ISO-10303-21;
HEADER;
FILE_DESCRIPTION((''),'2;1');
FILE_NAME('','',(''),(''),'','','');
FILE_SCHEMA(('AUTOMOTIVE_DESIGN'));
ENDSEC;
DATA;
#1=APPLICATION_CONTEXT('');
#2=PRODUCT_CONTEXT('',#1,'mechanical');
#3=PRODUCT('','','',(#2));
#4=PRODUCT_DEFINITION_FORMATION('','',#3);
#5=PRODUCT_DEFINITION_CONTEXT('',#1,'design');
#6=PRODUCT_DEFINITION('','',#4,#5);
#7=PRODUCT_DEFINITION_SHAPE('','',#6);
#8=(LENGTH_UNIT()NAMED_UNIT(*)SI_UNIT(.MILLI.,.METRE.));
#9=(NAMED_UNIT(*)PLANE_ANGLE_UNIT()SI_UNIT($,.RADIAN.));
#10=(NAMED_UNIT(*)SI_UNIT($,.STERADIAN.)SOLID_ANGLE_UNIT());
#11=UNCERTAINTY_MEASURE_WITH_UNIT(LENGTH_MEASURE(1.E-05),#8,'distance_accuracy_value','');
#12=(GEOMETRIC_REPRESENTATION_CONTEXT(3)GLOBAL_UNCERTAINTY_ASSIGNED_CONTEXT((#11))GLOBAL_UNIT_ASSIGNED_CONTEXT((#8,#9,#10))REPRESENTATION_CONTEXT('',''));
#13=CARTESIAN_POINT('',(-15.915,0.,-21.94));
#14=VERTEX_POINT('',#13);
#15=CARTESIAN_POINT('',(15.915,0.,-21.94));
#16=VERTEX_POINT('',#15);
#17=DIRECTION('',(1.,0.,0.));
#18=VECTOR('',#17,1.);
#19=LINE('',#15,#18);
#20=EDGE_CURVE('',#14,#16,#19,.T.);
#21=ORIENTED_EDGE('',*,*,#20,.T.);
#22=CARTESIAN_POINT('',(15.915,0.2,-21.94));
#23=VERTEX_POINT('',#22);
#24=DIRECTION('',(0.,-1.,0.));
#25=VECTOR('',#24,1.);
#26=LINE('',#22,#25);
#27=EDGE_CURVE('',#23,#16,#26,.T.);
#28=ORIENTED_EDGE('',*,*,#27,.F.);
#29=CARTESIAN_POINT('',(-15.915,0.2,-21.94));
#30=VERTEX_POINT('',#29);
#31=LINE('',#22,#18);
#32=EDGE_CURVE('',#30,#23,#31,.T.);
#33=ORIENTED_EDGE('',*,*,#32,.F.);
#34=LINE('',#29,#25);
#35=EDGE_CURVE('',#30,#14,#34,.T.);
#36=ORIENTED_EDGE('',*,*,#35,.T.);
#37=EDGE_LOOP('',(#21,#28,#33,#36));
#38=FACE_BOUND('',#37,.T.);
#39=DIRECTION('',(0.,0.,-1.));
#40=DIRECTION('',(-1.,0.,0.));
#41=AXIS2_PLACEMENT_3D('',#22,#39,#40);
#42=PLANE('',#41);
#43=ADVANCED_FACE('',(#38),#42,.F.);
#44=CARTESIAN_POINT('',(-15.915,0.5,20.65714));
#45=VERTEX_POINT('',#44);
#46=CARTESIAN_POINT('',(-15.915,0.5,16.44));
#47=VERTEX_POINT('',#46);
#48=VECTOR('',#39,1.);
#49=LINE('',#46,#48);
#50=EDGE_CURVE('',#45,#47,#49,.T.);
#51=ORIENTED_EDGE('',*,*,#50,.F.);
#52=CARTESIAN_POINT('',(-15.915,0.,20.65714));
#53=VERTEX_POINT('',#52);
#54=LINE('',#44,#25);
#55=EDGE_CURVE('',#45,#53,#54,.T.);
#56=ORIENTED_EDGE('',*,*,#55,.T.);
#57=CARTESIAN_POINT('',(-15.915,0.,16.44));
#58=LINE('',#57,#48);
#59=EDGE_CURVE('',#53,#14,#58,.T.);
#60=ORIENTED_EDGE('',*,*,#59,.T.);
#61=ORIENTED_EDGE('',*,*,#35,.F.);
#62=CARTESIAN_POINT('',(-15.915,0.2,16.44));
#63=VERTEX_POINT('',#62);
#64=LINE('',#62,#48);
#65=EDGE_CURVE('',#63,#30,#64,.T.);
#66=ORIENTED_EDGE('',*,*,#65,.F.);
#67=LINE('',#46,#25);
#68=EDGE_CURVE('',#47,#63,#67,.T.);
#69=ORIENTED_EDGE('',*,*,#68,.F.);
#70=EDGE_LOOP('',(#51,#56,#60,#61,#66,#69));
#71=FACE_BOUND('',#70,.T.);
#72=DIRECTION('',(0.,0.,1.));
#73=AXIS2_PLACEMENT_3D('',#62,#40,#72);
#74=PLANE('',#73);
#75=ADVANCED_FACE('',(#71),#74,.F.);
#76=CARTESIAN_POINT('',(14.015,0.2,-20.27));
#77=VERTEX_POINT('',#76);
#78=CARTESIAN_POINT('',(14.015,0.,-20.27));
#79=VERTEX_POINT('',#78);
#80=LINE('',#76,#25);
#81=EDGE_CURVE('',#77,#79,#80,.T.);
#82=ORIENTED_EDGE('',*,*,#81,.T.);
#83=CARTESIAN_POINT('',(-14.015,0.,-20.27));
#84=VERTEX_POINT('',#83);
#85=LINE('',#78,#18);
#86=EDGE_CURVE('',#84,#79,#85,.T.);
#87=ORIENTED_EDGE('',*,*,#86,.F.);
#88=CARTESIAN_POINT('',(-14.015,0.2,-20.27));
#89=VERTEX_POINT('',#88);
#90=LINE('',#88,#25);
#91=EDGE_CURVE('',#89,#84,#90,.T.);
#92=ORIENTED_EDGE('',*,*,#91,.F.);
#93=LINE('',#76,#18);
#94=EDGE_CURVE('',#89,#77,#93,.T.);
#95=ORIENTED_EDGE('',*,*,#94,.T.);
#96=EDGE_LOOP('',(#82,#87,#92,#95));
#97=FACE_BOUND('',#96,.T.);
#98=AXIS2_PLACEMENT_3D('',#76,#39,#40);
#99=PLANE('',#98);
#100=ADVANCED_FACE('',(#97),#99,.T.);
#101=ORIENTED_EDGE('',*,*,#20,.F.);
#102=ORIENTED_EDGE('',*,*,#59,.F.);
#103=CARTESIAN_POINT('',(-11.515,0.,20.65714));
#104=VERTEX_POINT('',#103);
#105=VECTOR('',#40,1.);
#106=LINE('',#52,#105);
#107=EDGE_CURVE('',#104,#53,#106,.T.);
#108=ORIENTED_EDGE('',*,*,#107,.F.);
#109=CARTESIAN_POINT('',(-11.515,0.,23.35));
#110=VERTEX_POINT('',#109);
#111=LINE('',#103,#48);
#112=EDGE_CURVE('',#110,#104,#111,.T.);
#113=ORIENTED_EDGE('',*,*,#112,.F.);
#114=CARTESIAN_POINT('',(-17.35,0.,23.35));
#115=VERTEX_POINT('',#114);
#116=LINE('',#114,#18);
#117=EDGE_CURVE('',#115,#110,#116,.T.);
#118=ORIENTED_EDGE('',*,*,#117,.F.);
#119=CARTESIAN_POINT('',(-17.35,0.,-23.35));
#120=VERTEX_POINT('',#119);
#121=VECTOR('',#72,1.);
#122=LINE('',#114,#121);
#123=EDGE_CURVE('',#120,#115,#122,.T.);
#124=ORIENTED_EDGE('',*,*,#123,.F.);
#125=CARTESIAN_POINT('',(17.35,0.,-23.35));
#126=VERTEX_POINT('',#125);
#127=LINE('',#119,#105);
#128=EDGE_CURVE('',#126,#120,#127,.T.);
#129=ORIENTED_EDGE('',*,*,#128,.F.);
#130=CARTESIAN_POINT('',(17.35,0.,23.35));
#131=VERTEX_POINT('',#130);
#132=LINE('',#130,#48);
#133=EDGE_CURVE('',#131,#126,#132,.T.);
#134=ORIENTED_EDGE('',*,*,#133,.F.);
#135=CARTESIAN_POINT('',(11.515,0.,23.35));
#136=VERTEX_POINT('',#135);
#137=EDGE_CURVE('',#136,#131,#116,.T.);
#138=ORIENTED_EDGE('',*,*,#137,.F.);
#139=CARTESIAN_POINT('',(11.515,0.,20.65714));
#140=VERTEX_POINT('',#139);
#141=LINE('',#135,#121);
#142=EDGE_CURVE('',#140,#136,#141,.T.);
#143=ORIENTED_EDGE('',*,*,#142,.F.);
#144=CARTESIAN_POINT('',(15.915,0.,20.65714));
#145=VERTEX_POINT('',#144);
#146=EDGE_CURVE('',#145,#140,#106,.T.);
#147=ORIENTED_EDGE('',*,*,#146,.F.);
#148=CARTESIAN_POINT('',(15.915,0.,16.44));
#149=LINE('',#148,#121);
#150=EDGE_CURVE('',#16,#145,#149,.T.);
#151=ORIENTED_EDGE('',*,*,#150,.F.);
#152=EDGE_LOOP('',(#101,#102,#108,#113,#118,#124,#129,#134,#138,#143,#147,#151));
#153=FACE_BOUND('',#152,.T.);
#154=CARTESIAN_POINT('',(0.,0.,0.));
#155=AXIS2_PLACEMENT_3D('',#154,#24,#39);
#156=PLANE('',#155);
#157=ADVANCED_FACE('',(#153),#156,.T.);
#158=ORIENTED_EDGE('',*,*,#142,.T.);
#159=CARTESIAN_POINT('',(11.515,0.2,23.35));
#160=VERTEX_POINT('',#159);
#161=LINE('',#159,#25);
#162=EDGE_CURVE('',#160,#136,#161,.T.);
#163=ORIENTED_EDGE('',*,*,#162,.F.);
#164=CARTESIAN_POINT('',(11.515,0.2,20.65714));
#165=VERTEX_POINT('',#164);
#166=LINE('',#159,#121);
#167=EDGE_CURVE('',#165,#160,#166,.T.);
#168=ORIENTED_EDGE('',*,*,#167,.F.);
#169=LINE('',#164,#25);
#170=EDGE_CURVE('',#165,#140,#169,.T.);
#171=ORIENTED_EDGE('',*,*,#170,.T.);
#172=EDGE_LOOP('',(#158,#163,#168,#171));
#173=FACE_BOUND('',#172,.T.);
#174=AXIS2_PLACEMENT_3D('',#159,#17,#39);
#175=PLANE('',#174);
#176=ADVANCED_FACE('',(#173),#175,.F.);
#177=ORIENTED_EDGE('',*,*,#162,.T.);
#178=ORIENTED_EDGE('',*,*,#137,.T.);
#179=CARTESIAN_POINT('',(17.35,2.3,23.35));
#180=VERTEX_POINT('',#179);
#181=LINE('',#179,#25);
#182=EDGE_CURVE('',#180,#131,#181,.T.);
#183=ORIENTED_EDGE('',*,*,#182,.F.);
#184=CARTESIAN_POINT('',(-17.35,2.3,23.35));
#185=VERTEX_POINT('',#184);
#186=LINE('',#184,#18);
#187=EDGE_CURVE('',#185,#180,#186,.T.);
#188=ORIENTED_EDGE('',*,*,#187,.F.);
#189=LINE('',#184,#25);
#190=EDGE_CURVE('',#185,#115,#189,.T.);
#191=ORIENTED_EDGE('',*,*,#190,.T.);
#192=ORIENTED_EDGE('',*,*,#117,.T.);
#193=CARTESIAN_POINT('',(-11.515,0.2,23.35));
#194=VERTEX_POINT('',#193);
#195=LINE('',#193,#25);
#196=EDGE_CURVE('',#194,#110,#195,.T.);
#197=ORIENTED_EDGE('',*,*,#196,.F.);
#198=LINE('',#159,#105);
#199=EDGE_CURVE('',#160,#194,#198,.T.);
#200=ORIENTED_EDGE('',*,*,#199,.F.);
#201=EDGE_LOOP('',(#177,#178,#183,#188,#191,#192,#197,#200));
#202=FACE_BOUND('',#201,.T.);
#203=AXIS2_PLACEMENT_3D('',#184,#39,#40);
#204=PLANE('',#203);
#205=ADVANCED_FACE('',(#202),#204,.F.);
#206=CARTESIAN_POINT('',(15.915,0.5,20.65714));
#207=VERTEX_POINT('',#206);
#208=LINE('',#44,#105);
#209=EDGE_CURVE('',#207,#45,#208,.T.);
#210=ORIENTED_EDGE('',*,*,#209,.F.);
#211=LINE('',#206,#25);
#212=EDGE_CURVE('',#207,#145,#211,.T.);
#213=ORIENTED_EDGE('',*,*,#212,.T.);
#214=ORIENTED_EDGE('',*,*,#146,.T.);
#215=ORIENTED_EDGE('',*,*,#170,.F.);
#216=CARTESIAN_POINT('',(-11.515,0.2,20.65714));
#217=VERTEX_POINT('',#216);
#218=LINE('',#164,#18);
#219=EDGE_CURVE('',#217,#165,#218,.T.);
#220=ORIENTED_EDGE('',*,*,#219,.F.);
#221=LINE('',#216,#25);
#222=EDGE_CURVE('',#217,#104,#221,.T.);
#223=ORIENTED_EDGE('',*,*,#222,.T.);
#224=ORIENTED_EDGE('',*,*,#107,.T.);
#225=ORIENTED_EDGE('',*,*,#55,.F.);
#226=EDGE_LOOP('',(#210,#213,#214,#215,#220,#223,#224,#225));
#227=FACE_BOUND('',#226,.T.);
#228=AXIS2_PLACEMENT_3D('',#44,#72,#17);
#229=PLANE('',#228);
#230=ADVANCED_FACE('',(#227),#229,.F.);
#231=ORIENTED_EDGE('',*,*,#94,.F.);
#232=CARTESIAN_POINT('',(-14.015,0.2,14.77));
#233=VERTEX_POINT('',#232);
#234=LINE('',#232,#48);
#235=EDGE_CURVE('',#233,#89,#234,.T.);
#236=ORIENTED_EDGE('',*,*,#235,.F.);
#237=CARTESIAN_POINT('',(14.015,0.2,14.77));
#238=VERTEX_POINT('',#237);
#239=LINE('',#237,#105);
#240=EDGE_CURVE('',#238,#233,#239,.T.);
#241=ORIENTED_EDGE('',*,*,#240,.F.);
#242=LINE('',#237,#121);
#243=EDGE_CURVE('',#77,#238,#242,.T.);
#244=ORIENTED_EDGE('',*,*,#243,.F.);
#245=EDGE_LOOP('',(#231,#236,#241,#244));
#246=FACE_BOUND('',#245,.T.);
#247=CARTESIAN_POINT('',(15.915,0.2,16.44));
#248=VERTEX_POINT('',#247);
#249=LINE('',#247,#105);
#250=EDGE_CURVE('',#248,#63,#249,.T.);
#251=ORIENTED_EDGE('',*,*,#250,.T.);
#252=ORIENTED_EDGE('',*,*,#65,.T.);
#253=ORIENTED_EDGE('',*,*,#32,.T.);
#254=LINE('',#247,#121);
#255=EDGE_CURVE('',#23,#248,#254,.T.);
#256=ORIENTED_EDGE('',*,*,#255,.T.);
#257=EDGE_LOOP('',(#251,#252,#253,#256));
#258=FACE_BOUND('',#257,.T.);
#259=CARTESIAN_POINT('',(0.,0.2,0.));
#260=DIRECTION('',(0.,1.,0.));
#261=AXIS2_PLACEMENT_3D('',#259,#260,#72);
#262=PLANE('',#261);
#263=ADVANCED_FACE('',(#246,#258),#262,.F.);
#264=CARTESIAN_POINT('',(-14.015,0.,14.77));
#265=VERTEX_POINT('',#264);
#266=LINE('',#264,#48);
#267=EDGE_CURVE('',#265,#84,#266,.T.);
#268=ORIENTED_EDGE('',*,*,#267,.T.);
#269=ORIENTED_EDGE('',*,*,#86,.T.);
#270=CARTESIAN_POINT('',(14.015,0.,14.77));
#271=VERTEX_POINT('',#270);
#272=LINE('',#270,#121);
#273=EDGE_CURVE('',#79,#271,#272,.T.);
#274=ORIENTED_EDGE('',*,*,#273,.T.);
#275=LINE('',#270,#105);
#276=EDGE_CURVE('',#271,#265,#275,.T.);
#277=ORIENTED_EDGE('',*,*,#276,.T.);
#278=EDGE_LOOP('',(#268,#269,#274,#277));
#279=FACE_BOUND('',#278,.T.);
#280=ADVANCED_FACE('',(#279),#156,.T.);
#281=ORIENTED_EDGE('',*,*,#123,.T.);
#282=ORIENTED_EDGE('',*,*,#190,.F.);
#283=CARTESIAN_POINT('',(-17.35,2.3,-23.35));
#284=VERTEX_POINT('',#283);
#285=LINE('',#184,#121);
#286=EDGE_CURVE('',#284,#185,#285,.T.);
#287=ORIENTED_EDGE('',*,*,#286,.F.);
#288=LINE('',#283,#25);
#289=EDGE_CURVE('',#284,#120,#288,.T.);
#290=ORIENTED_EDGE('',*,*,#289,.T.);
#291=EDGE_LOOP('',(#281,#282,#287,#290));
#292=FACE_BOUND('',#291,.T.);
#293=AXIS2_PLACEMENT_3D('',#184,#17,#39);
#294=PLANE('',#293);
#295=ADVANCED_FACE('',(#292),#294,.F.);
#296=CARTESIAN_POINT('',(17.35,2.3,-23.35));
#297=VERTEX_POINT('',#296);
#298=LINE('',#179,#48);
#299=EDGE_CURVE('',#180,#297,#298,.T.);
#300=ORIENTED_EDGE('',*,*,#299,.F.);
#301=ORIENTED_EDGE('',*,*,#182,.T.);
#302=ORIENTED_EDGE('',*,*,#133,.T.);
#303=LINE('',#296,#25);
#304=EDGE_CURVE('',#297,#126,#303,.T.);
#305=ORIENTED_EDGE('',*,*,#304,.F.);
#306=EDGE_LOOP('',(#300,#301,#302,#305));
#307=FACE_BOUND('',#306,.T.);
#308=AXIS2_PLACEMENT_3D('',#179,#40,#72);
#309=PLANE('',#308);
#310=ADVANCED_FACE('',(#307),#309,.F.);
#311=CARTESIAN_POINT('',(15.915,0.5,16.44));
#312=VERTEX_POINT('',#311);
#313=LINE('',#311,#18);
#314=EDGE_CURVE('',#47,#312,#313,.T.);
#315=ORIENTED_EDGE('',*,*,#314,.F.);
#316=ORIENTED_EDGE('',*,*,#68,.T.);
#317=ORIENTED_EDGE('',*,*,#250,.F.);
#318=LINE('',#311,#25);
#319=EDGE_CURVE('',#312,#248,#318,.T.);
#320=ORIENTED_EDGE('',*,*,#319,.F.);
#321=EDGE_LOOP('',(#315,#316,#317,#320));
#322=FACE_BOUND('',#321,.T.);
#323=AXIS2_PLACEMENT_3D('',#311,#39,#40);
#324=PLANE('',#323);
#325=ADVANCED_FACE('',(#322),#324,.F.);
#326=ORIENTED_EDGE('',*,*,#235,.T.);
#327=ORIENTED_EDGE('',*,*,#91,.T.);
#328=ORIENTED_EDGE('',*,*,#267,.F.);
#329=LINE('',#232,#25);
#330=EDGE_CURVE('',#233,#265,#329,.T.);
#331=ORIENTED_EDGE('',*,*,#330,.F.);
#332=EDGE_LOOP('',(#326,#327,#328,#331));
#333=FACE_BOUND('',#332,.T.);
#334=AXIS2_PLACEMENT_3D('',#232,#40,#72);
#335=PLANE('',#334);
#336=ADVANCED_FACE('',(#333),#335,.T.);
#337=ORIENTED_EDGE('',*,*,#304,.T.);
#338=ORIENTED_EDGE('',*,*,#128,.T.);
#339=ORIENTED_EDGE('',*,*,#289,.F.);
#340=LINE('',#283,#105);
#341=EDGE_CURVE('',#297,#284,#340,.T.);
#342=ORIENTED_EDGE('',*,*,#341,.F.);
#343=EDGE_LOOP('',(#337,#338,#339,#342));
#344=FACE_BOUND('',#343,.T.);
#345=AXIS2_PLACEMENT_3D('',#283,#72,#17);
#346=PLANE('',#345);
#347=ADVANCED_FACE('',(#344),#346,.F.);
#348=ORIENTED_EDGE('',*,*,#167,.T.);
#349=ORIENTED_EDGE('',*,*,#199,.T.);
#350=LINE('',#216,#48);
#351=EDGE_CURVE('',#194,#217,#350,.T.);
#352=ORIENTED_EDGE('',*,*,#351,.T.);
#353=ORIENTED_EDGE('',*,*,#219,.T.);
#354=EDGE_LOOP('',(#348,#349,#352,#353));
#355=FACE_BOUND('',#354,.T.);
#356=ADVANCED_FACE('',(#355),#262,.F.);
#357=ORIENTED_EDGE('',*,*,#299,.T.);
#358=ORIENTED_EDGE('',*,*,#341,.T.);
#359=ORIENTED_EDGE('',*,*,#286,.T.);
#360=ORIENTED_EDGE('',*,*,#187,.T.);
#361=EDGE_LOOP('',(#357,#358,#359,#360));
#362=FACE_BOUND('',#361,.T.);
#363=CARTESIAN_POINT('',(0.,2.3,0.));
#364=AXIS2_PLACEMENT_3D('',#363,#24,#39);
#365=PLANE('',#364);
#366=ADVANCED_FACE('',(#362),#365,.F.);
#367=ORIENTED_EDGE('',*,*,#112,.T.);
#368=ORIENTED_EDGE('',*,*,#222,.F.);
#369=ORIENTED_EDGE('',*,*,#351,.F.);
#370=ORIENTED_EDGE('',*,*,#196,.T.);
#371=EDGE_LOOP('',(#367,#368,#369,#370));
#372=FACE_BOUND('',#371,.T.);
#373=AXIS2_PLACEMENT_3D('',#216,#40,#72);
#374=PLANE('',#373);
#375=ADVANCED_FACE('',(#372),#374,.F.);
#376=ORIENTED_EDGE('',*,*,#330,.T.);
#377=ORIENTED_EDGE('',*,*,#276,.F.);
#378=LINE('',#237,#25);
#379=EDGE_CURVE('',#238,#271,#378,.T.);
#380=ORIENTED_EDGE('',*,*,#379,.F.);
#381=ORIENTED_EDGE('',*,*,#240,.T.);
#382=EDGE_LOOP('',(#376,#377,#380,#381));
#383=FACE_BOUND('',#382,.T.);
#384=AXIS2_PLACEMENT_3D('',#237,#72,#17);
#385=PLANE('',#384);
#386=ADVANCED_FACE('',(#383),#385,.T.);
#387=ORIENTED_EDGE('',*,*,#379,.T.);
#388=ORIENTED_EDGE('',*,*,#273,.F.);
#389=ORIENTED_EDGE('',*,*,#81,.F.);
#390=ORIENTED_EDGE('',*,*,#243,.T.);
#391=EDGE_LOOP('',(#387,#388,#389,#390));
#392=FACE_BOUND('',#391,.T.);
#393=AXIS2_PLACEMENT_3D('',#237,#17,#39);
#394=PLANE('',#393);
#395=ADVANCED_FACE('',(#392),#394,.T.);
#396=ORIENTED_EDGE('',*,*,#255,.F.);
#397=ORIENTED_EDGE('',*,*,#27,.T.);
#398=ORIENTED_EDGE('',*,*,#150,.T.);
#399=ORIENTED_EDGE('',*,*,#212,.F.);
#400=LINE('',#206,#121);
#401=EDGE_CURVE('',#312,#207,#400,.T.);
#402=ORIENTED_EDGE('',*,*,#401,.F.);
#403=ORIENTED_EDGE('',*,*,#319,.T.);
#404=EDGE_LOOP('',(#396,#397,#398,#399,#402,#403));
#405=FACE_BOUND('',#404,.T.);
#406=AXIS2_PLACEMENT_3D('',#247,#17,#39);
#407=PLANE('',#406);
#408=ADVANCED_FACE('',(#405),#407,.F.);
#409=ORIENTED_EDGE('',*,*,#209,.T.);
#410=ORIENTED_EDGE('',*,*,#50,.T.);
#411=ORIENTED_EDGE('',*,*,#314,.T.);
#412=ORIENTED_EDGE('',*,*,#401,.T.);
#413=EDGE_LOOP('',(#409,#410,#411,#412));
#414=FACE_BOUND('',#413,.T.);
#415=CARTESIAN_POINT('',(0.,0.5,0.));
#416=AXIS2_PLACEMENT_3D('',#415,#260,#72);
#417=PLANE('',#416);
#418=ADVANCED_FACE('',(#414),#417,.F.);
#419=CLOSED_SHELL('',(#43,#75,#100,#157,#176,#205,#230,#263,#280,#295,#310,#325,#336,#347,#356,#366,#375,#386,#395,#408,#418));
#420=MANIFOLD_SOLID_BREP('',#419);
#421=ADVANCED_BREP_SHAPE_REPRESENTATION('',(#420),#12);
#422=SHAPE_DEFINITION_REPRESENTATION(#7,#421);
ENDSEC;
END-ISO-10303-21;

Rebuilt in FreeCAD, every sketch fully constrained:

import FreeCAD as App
import Part
import Sketcher
from FreeCAD import Vector
Q = App.Units.Quantity

doc = App.newDocument("Part")
body = doc.addObject("PartDesign::Body", "Body")

# Sketch on XZ plane
sketch1 = body.newObject("Sketcher::SketchObject", "Sketch")
sketch1.AttachmentSupport = (doc.getObject("XZ_Plane"), [""])
sketch1.MapMode = "FlatFace"
sketch1.addGeometry([
    Part.LineSegment(Vector(-17, -23, 0), Vector(-17, 23, 0)),
    Part.LineSegment(Vector(-17, 23, 0), Vector(17, 23, 0)),
    Part.LineSegment(Vector(17, 23, 0), Vector(17, -23, 0)),
    Part.LineSegment(Vector(17, -23, 0), Vector(-17, -23, 0)),
], False)
sketch1.addConstraint([
    Sketcher.Constraint("Coincident", 0, 2, 1, 1),
    Sketcher.Constraint("Coincident", 1, 2, 2, 1),
    Sketcher.Constraint("Coincident", 2, 2, 3, 1),
    Sketcher.Constraint("Coincident", 3, 2, 0, 1),
    Sketcher.Constraint("Vertical", 0),
    Sketcher.Constraint("Horizontal", 1),
    Sketcher.Constraint("Vertical", 2),
    Sketcher.Constraint("Horizontal", 3),
    Sketcher.Constraint("Symmetric", 0, 2, 2, 2, -1, 1),
    Sketcher.Constraint("DistanceX", 1, 1, 1, 2, Q("34.7 mm")),
    Sketcher.Constraint("DistanceY", 0, 1, 0, 2, Q("46.7 mm")),
])
pad1 = body.newObject("PartDesign::Pad", "Pad")
pad1.Profile = sketch1
pad1.Length = 2.3
pad1.Reversed = True

# Sketch on XZ plane
sketch2 = body.newObject("Sketcher::SketchObject", "Sketch001")
sketch2.AttachmentSupport = (doc.getObject("XZ_Plane"), [""])
sketch2.MapMode = "FlatFace"
sketch2.addGeometry([
    Part.LineSegment(Vector(-16, 16, 0), Vector(-16, -22, 0)),  # 0
    Part.LineSegment(Vector(-16, -22, 0), Vector(16, -22, 0)),  # 1
    Part.LineSegment(Vector(16, -22, 0), Vector(16, 16, 0)),  # 2
    Part.LineSegment(Vector(16, 16, 0), Vector(-16, 16, 0)),  # 3
    Part.LineSegment(Vector(14, -20, 0), Vector(-14, -20, 0)),  # 4
    Part.LineSegment(Vector(-14, -20, 0), Vector(-14, 15, 0)),  # 5
    Part.LineSegment(Vector(-14, 15, 0), Vector(14, 15, 0)),  # 6
    Part.LineSegment(Vector(14, 15, 0), Vector(14, -20, 0)),  # 7
], False)
sketch2.addConstraint([
    Sketcher.Constraint("Coincident", 0, 2, 1, 1),
    Sketcher.Constraint("Coincident", 1, 2, 2, 1),
    Sketcher.Constraint("Coincident", 2, 2, 3, 1),
    Sketcher.Constraint("Coincident", 3, 2, 0, 1),
    Sketcher.Constraint("Coincident", 4, 2, 5, 1),
    Sketcher.Constraint("Coincident", 5, 2, 6, 1),
    Sketcher.Constraint("Coincident", 6, 2, 7, 1),
    Sketcher.Constraint("Coincident", 7, 2, 4, 1),
    Sketcher.Constraint("Vertical", 0),
    Sketcher.Constraint("Horizontal", 1),
    Sketcher.Constraint("Vertical", 2),
    Sketcher.Constraint("Horizontal", 3),
    Sketcher.Constraint("Horizontal", 4),
    Sketcher.Constraint("Vertical", 5),
    Sketcher.Constraint("Horizontal", 6),
    Sketcher.Constraint("Vertical", 7),
    Sketcher.Constraint("DistanceX", 1, 1, 1, 2, Q("31.83 mm")),
    Sketcher.Constraint("DistanceX", 4, 2, 4, 1, Q("28.03 mm")),
    Sketcher.Constraint("DistanceY", 0, 2, 0, 1, Q("38.38 mm")),
    Sketcher.Constraint("DistanceY", 5, 1, 5, 2, Q("35.04 mm")),
    Sketcher.Constraint("DistanceX", 0, 2, 4, 2, Q("1.9 mm")),
    Sketcher.Constraint("DistanceY", 0, 2, -1, 1, Q("21.94 mm")),
    Sketcher.Constraint("DistanceY", 4, 2, -1, 1, Q("20.27 mm")),
    Sketcher.Constraint("DistanceX", 0, 2, -1, 1, Q("15.915 mm")),
])
pocket1 = body.newObject("PartDesign::Pocket", "Pocket")
pocket1.Profile = sketch2
pocket1.Length = 0.2

# Sketch on XZ plane
sketch3 = body.newObject("Sketcher::SketchObject", "Sketch002")
sketch3.AttachmentSupport = (doc.getObject("XZ_Plane"), [""])
sketch3.MapMode = "FlatFace"
sketch3.addGeometry([
    Part.LineSegment(Vector(-15.9, 20.7, 0), Vector(-15.9, 16.4, 0)),
    Part.LineSegment(Vector(-15.9, 16.4, 0), Vector(15.9, 16.4, 0)),
    Part.LineSegment(Vector(15.9, 16.4, 0), Vector(15.9, 20.7, 0)),
    Part.LineSegment(Vector(15.9, 20.7, 0), Vector(-15.9, 20.7, 0)),
], False)
sketch3.addConstraint([
    Sketcher.Constraint("Coincident", 0, 2, 1, 1),
    Sketcher.Constraint("Coincident", 1, 2, 2, 1),
    Sketcher.Constraint("Coincident", 2, 2, 3, 1),
    Sketcher.Constraint("Coincident", 3, 2, 0, 1),
    Sketcher.Constraint("Vertical", 0),
    Sketcher.Constraint("Horizontal", 1),
    Sketcher.Constraint("Vertical", 2),
    Sketcher.Constraint("Horizontal", 3),
    Sketcher.Constraint("DistanceX", 1, 1, 1, 2, Q("31.83 mm")),
    Sketcher.Constraint("DistanceY", -1, 1, 0, 2, Q("16.44 mm")),
    Sketcher.Constraint("DistanceX", 0, 2, -1, 1, Q("15.915 mm")),
    Sketcher.Constraint("DistanceY", 0, 2, 0, 1, Q("4.21714 mm")),
])
pocket2 = body.newObject("PartDesign::Pocket", "Pocket001")
pocket2.Profile = sketch3
pocket2.Length = 0.5

# Sketch on XZ plane
sketch4 = body.newObject("Sketcher::SketchObject", "Sketch003")
sketch4.AttachmentSupport = (doc.getObject("XZ_Plane"), [""])
sketch4.MapMode = "FlatFace"
sketch4.addGeometry([
    Part.LineSegment(Vector(-11.5, 23.4, 0), Vector(-11.5, 20.7, 0)),
    Part.LineSegment(Vector(-11.5, 20.7, 0), Vector(11.5, 20.7, 0)),
    Part.LineSegment(Vector(11.5, 20.7, 0), Vector(11.5, 23.4, 0)),
    Part.LineSegment(Vector(11.5, 23.4, 0), Vector(-11.5, 23.4, 0)),
], False)
sketch4.addConstraint([
    Sketcher.Constraint("Coincident", 0, 2, 1, 1),
    Sketcher.Constraint("Coincident", 1, 2, 2, 1),
    Sketcher.Constraint("Coincident", 2, 2, 3, 1),
    Sketcher.Constraint("Coincident", 3, 2, 0, 1),
    Sketcher.Constraint("Vertical", 0),
    Sketcher.Constraint("Horizontal", 1),
    Sketcher.Constraint("Vertical", 2),
    Sketcher.Constraint("Horizontal", 3),
    Sketcher.Constraint("DistanceX", 1, 1, 1, 2, Q("23.03 mm")),
    Sketcher.Constraint("DistanceY", -1, 1, 2, 2, Q("23.35 mm")),
    Sketcher.Constraint("DistanceX", 0, 2, -1, 1, Q("11.515 mm")),
    Sketcher.Constraint("DistanceY", 0, 2, 0, 1, Q("2.69286 mm")),
])
pocket3 = body.newObject("PartDesign::Pocket", "Pocket002")
pocket3.Profile = sketch4
pocket3.Length = 0.2

doc.recompute()
